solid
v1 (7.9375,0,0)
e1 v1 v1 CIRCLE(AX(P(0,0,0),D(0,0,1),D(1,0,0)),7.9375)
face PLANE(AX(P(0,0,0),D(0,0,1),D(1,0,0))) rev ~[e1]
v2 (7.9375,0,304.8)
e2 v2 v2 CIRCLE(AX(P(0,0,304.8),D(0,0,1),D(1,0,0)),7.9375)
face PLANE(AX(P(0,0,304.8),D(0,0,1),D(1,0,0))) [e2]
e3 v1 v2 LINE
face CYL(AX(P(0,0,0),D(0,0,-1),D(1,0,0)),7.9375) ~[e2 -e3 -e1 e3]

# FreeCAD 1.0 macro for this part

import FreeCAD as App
import Part
import Sketcher
from FreeCAD import Vector
Q = App.Units.Quantity

doc = App.newDocument("Part")
body = doc.addObject("PartDesign::Body", "Body")

# Sketch on XY plane
sketch1 = body.newObject("Sketcher::SketchObject", "Sketch")
sketch1.AttachmentSupport = (doc.getObject("XY_Plane"), [""])
sketch1.MapMode = "FlatFace"
sketch1.addGeometry(Part.Circle(Vector(0, 0, 0), Vector(0, 0, 1), 7.9375), False)
sketch1.addConstraint(Sketcher.Constraint("Coincident", 0, 3, -1, 1))
sketch1.addConstraint(Sketcher.Constraint("Diameter", 0, Q("0.625 in")))
pad1 = body.newObject("PartDesign::Pad", "Pad")
pad1.Profile = sketch1
pad1.Length = Q("12 in")

doc.recompute()
